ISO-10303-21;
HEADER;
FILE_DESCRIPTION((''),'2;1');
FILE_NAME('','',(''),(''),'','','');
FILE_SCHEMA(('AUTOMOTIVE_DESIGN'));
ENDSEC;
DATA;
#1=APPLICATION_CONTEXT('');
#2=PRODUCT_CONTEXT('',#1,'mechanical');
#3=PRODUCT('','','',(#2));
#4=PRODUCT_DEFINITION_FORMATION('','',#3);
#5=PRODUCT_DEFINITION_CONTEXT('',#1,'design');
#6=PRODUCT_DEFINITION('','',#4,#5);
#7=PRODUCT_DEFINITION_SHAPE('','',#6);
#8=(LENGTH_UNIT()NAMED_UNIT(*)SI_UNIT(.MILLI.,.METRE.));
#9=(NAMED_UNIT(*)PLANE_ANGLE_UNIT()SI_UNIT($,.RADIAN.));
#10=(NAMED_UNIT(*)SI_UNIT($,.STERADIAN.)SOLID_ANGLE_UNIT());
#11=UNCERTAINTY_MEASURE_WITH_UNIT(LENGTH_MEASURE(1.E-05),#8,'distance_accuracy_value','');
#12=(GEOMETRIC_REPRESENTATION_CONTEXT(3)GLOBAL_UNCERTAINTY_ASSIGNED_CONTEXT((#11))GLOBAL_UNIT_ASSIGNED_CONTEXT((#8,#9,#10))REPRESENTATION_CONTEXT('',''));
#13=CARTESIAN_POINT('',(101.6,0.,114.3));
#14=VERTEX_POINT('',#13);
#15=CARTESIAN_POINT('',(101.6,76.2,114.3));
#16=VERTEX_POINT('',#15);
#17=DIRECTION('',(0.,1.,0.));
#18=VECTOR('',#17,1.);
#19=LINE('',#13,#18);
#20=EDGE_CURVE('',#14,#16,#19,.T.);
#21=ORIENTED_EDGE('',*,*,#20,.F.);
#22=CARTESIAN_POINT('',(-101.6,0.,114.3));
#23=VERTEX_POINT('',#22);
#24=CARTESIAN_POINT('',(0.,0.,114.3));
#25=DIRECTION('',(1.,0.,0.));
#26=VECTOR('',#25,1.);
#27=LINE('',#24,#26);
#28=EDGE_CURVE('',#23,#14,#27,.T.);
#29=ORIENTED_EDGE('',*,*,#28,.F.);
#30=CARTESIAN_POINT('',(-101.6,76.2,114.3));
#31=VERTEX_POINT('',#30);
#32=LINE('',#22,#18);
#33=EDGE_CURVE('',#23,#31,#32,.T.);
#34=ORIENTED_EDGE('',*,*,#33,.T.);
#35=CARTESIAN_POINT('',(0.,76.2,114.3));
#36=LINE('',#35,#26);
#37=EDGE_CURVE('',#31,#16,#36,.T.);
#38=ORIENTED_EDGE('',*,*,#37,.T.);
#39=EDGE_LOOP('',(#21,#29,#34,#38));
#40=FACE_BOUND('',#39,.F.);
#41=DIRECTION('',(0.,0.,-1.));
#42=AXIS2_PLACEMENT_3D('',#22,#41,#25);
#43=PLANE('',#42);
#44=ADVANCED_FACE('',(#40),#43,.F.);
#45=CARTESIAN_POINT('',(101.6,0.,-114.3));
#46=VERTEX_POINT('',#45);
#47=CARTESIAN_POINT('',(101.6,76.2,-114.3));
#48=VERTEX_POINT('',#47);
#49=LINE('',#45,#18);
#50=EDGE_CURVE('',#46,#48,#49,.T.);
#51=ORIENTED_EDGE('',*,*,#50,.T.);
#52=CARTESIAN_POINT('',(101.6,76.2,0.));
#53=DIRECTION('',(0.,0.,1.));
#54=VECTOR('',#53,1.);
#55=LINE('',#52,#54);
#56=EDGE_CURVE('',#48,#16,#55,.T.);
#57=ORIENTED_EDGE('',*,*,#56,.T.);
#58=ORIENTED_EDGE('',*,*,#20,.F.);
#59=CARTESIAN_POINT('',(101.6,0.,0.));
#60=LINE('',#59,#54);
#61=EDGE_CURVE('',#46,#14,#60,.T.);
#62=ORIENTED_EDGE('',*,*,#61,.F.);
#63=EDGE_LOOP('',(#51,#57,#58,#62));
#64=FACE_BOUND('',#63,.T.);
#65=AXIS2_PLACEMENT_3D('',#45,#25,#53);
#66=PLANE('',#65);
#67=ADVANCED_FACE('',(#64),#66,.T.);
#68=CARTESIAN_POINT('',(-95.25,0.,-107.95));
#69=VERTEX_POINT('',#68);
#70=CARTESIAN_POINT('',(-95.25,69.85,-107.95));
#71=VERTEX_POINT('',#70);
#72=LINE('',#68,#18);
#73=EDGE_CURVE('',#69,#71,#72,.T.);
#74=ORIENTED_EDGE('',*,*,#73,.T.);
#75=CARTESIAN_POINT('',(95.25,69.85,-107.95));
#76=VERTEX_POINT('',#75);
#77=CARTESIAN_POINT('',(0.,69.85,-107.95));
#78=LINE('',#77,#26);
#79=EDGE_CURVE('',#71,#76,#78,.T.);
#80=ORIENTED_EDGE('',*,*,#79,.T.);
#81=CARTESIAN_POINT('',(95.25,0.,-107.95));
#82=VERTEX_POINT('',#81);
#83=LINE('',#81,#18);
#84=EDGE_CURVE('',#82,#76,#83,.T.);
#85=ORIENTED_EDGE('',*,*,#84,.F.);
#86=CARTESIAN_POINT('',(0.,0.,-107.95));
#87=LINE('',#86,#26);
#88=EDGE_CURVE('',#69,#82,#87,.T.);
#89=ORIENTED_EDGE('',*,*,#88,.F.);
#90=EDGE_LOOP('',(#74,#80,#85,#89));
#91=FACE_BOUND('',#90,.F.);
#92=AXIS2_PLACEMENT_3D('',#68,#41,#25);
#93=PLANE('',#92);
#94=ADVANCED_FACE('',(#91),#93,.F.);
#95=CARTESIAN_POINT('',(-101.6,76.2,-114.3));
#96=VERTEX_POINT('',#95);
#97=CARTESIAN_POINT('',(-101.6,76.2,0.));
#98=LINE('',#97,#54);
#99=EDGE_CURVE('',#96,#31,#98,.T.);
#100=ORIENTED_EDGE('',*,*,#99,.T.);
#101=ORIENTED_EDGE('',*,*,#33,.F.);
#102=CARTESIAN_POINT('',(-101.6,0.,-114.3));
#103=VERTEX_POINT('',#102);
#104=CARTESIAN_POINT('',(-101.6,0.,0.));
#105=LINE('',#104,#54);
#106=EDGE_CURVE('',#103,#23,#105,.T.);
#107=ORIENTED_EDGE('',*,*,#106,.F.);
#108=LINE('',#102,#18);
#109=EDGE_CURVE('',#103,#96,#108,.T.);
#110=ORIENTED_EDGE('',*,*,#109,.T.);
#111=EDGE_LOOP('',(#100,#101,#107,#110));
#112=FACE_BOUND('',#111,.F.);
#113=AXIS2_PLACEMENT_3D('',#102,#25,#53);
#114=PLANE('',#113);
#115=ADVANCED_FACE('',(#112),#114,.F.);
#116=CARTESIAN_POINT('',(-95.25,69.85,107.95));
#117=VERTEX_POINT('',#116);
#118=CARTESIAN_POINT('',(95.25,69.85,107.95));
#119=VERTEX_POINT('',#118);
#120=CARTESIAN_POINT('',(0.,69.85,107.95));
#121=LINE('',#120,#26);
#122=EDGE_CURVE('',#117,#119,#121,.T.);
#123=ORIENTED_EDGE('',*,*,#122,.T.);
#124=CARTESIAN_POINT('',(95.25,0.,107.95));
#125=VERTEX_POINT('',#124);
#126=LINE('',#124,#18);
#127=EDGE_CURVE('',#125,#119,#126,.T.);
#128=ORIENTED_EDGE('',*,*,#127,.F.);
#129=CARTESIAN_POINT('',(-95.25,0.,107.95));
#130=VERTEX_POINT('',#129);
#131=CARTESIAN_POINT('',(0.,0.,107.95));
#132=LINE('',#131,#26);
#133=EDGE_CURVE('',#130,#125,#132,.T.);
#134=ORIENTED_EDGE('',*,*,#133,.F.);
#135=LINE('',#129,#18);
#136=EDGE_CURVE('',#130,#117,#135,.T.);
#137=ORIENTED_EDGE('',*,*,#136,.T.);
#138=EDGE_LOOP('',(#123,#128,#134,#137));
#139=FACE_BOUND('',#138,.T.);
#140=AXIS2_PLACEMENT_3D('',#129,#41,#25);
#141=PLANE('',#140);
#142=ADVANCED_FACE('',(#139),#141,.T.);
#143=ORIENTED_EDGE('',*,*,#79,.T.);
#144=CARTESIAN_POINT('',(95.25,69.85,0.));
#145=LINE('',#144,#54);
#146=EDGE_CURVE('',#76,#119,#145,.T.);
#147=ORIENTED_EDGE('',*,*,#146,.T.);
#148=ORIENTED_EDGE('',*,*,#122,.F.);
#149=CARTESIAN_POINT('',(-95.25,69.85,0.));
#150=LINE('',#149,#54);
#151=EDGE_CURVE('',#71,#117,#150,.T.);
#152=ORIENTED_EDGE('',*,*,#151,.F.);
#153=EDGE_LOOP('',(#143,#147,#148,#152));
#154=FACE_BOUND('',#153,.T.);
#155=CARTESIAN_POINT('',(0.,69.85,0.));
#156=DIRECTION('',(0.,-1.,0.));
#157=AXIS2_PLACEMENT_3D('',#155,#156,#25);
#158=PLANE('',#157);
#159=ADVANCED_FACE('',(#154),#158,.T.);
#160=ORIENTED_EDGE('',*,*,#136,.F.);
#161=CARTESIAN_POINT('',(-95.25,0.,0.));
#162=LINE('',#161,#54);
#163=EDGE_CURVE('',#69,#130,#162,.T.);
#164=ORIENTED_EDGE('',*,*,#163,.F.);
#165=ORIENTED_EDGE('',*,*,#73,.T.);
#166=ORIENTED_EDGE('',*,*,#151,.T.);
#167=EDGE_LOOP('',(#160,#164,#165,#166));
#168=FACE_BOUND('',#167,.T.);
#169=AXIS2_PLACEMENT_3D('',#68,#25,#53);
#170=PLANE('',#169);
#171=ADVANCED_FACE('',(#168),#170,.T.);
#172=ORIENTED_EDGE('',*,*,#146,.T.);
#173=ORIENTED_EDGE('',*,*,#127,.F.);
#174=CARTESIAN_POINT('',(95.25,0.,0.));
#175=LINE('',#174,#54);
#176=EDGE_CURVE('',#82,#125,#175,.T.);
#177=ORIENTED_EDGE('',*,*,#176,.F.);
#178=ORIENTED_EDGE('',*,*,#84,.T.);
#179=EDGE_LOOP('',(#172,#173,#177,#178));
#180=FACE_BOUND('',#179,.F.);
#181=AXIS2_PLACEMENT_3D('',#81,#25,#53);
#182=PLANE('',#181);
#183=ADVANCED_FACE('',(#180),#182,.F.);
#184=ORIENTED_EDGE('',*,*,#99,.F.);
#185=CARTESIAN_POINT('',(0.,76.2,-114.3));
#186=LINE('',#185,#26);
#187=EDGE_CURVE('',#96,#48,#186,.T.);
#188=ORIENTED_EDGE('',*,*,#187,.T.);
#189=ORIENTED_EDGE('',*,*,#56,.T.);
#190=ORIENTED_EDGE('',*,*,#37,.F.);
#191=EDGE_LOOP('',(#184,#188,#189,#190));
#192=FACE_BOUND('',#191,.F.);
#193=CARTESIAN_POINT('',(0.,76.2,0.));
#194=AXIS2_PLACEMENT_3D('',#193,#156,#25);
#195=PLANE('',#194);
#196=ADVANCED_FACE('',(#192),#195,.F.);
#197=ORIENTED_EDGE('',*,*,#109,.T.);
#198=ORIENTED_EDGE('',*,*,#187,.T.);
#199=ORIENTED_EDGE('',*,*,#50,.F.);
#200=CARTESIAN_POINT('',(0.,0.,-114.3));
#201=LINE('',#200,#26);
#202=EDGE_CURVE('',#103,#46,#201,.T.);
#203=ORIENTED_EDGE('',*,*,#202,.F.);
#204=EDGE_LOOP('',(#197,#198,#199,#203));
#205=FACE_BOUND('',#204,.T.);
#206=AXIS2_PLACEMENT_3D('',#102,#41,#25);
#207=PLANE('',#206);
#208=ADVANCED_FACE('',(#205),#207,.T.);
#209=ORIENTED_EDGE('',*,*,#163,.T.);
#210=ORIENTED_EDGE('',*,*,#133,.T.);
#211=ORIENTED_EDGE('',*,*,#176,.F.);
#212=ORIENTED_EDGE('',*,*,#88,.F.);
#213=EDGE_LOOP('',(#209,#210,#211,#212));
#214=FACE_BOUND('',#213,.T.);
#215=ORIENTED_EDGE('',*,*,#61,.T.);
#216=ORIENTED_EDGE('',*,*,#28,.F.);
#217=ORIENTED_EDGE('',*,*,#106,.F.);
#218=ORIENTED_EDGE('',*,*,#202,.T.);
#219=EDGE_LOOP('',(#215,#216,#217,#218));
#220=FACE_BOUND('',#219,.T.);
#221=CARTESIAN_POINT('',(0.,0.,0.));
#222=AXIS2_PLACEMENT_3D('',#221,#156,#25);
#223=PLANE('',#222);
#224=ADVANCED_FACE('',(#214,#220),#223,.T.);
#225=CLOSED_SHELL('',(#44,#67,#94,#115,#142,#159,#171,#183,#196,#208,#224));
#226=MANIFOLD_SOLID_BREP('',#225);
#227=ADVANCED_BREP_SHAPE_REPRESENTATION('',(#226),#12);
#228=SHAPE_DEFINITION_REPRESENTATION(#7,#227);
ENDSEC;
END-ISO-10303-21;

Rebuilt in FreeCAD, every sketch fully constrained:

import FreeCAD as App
import Part
import Sketcher

V = App.Vector
Q = App.Units.Quantity

doc = App.newDocument("Part")
body = doc.addObject("PartDesign::Body", "Body")

sketch1 = body.newObject("Sketcher::SketchObject", "Sketch")
sketch1.AttachmentSupport = (doc.getObject("XZ_Plane"), [""])
sketch1.MapMode = "FlatFace"
sketch1.addGeometry([
    Part.LineSegment(V(-101.6, 114.3, 0), V(-101.6, -114.3, 0)),
    Part.LineSegment(V(-101.6, -114.3, 0), V(101.6, -114.3, 0)),
    Part.LineSegment(V(101.6, -114.3, 0), V(101.6, 114.3, 0)),
    Part.LineSegment(V(101.6, 114.3, 0), V(-101.6, 114.3, 0)),
    Part.LineSegment(V(95.25, -107.95, 0), V(-95.25, -107.95, 0)),
    Part.LineSegment(V(-95.25, -107.95, 0), V(-95.25, 107.95, 0)),
    Part.LineSegment(V(-95.25, 107.95, 0), V(95.25, 107.95, 0)),
    Part.LineSegment(V(95.25, 107.95, 0), V(95.25, -107.95, 0)),
], False)
sketch1.addConstraint([
    Sketcher.Constraint("Coincident", 0, 2, 1, 1),
    Sketcher.Constraint("Coincident", 1, 2, 2, 1),
    Sketcher.Constraint("Coincident", 2, 2, 3, 1),
    Sketcher.Constraint("Coincident", 3, 2, 0, 1),
    Sketcher.Constraint("Coincident", 4, 2, 5, 1),
    Sketcher.Constraint("Coincident", 5, 2, 6, 1),
    Sketcher.Constraint("Coincident", 6, 2, 7, 1),
    Sketcher.Constraint("Coincident", 7, 2, 4, 1),
    Sketcher.Constraint("Vertical", 0),
    Sketcher.Constraint("Horizontal", 1),
    Sketcher.Constraint("Vertical", 2),
    Sketcher.Constraint("Horizontal", 3),
    Sketcher.Constraint("Horizontal", 4),
    Sketcher.Constraint("Vertical", 5),
    Sketcher.Constraint("Horizontal", 6),
    Sketcher.Constraint("Vertical", 7),
    Sketcher.Constraint("Symmetric", 0, 2, 2, 2, -1, 1),
    Sketcher.Constraint("Symmetric", 4, 2, 6, 2, -1, 1),
    Sketcher.Constraint("DistanceX", 1, 1, 1, 2, Q("8 in")),
    Sketcher.Constraint("DistanceY", 0, 2, 0, 1, Q("9 in")),
    Sketcher.Constraint("DistanceX", 4, 2, 4, 1, Q("7.5 in")),
    Sketcher.Constraint("DistanceY", 5, 1, 5, 2, Q("8.5 in")),
])
pad1 = body.newObject("PartDesign::Pad", "Pad")
pad1.Profile = sketch1
pad1.Length = Q("3 in")
pad1.Reversed = True

sketch2 = body.newObject("Sketcher::SketchObject", "Sketch001")
sketch2.AttachmentSupport = (doc.getObject("XZ_Plane"), [""])
sketch2.MapMode = "FlatFace"
sketch2.addGeometry([
    Part.LineSegment(V(-95.25, 107.95, 0), V(-95.25, -107.95, 0)),
    Part.LineSegment(V(-95.25, -107.95, 0), V(95.25, -107.95, 0)),
    Part.LineSegment(V(95.25, -107.95, 0), V(95.25, 107.95, 0)),
    Part.LineSegment(V(95.25, 107.95, 0), V(-95.25, 107.95, 0)),
], False)
sketch2.addConstraint([
    Sketcher.Constraint("Coincident", 0, 2, 1, 1),
    Sketcher.Constraint("Coincident", 1, 2, 2, 1),
    Sketcher.Constraint("Coincident", 2, 2, 3, 1),
    Sketcher.Constraint("Coincident", 3, 2, 0, 1),
    Sketcher.Constraint("Vertical", 0),
    Sketcher.Constraint("Horizontal", 1),
    Sketcher.Constraint("Vertical", 2),
    Sketcher.Constraint("Horizontal", 3),
    Sketcher.Constraint("Symmetric", 0, 2, 2, 2, -1, 1),
    Sketcher.Constraint("DistanceX", 1, 1, 1, 2, Q("7.5 in")),
    Sketcher.Constraint("DistanceY", 0, 2, 0, 1, Q("8.5 in")),
])
pad2 = body.newObject("PartDesign::Pad", "Pad001")
pad2.Profile = sketch2
pad2.Length = Q("3 in")
pad2.Reversed = True

sketch3 = body.newObject("Sketcher::SketchObject", "Sketch002")
sketch3.AttachmentSupport = (doc.getObject("XZ_Plane"), [""])
sketch3.MapMode = "FlatFace"
sketch3.addGeometry([
    Part.LineSegment(V(-95.25, 107.95, 0), V(-95.25, -107.95, 0)),
    Part.LineSegment(V(-95.25, -107.95, 0), V(95.25, -107.95, 0)),
    Part.LineSegment(V(95.25, -107.95, 0), V(95.25, 107.95, 0)),
    Part.LineSegment(V(95.25, 107.95, 0), V(-95.25, 107.95, 0)),
], False)
sketch3.addConstraint([
    Sketcher.Constraint("Coincident", 0, 2, 1, 1),
    Sketcher.Constraint("Coincident", 1, 2, 2, 1),
    Sketcher.Constraint("Coincident", 2, 2, 3, 1),
    Sketcher.Constraint("Coincident", 3, 2, 0, 1),
    Sketcher.Constraint("Vertical", 0),
    Sketcher.Constraint("Horizontal", 1),
    Sketcher.Constraint("Vertical", 2),
    Sketcher.Constraint("Horizontal", 3),
    Sketcher.Constraint("Symmetric", 0, 2, 2, 2, -1, 1),
    Sketcher.Constraint("DistanceX", 1, 1, 1, 2, Q("7.5 in")),
    Sketcher.Constraint("DistanceY", 0, 2, 0, 1, Q("8.5 in")),
])
pocket1 = body.newObject("PartDesign::Pocket", "Pocket")
pocket1.Profile = sketch3
pocket1.Length = Q("2.75 in")

doc.recompute()
